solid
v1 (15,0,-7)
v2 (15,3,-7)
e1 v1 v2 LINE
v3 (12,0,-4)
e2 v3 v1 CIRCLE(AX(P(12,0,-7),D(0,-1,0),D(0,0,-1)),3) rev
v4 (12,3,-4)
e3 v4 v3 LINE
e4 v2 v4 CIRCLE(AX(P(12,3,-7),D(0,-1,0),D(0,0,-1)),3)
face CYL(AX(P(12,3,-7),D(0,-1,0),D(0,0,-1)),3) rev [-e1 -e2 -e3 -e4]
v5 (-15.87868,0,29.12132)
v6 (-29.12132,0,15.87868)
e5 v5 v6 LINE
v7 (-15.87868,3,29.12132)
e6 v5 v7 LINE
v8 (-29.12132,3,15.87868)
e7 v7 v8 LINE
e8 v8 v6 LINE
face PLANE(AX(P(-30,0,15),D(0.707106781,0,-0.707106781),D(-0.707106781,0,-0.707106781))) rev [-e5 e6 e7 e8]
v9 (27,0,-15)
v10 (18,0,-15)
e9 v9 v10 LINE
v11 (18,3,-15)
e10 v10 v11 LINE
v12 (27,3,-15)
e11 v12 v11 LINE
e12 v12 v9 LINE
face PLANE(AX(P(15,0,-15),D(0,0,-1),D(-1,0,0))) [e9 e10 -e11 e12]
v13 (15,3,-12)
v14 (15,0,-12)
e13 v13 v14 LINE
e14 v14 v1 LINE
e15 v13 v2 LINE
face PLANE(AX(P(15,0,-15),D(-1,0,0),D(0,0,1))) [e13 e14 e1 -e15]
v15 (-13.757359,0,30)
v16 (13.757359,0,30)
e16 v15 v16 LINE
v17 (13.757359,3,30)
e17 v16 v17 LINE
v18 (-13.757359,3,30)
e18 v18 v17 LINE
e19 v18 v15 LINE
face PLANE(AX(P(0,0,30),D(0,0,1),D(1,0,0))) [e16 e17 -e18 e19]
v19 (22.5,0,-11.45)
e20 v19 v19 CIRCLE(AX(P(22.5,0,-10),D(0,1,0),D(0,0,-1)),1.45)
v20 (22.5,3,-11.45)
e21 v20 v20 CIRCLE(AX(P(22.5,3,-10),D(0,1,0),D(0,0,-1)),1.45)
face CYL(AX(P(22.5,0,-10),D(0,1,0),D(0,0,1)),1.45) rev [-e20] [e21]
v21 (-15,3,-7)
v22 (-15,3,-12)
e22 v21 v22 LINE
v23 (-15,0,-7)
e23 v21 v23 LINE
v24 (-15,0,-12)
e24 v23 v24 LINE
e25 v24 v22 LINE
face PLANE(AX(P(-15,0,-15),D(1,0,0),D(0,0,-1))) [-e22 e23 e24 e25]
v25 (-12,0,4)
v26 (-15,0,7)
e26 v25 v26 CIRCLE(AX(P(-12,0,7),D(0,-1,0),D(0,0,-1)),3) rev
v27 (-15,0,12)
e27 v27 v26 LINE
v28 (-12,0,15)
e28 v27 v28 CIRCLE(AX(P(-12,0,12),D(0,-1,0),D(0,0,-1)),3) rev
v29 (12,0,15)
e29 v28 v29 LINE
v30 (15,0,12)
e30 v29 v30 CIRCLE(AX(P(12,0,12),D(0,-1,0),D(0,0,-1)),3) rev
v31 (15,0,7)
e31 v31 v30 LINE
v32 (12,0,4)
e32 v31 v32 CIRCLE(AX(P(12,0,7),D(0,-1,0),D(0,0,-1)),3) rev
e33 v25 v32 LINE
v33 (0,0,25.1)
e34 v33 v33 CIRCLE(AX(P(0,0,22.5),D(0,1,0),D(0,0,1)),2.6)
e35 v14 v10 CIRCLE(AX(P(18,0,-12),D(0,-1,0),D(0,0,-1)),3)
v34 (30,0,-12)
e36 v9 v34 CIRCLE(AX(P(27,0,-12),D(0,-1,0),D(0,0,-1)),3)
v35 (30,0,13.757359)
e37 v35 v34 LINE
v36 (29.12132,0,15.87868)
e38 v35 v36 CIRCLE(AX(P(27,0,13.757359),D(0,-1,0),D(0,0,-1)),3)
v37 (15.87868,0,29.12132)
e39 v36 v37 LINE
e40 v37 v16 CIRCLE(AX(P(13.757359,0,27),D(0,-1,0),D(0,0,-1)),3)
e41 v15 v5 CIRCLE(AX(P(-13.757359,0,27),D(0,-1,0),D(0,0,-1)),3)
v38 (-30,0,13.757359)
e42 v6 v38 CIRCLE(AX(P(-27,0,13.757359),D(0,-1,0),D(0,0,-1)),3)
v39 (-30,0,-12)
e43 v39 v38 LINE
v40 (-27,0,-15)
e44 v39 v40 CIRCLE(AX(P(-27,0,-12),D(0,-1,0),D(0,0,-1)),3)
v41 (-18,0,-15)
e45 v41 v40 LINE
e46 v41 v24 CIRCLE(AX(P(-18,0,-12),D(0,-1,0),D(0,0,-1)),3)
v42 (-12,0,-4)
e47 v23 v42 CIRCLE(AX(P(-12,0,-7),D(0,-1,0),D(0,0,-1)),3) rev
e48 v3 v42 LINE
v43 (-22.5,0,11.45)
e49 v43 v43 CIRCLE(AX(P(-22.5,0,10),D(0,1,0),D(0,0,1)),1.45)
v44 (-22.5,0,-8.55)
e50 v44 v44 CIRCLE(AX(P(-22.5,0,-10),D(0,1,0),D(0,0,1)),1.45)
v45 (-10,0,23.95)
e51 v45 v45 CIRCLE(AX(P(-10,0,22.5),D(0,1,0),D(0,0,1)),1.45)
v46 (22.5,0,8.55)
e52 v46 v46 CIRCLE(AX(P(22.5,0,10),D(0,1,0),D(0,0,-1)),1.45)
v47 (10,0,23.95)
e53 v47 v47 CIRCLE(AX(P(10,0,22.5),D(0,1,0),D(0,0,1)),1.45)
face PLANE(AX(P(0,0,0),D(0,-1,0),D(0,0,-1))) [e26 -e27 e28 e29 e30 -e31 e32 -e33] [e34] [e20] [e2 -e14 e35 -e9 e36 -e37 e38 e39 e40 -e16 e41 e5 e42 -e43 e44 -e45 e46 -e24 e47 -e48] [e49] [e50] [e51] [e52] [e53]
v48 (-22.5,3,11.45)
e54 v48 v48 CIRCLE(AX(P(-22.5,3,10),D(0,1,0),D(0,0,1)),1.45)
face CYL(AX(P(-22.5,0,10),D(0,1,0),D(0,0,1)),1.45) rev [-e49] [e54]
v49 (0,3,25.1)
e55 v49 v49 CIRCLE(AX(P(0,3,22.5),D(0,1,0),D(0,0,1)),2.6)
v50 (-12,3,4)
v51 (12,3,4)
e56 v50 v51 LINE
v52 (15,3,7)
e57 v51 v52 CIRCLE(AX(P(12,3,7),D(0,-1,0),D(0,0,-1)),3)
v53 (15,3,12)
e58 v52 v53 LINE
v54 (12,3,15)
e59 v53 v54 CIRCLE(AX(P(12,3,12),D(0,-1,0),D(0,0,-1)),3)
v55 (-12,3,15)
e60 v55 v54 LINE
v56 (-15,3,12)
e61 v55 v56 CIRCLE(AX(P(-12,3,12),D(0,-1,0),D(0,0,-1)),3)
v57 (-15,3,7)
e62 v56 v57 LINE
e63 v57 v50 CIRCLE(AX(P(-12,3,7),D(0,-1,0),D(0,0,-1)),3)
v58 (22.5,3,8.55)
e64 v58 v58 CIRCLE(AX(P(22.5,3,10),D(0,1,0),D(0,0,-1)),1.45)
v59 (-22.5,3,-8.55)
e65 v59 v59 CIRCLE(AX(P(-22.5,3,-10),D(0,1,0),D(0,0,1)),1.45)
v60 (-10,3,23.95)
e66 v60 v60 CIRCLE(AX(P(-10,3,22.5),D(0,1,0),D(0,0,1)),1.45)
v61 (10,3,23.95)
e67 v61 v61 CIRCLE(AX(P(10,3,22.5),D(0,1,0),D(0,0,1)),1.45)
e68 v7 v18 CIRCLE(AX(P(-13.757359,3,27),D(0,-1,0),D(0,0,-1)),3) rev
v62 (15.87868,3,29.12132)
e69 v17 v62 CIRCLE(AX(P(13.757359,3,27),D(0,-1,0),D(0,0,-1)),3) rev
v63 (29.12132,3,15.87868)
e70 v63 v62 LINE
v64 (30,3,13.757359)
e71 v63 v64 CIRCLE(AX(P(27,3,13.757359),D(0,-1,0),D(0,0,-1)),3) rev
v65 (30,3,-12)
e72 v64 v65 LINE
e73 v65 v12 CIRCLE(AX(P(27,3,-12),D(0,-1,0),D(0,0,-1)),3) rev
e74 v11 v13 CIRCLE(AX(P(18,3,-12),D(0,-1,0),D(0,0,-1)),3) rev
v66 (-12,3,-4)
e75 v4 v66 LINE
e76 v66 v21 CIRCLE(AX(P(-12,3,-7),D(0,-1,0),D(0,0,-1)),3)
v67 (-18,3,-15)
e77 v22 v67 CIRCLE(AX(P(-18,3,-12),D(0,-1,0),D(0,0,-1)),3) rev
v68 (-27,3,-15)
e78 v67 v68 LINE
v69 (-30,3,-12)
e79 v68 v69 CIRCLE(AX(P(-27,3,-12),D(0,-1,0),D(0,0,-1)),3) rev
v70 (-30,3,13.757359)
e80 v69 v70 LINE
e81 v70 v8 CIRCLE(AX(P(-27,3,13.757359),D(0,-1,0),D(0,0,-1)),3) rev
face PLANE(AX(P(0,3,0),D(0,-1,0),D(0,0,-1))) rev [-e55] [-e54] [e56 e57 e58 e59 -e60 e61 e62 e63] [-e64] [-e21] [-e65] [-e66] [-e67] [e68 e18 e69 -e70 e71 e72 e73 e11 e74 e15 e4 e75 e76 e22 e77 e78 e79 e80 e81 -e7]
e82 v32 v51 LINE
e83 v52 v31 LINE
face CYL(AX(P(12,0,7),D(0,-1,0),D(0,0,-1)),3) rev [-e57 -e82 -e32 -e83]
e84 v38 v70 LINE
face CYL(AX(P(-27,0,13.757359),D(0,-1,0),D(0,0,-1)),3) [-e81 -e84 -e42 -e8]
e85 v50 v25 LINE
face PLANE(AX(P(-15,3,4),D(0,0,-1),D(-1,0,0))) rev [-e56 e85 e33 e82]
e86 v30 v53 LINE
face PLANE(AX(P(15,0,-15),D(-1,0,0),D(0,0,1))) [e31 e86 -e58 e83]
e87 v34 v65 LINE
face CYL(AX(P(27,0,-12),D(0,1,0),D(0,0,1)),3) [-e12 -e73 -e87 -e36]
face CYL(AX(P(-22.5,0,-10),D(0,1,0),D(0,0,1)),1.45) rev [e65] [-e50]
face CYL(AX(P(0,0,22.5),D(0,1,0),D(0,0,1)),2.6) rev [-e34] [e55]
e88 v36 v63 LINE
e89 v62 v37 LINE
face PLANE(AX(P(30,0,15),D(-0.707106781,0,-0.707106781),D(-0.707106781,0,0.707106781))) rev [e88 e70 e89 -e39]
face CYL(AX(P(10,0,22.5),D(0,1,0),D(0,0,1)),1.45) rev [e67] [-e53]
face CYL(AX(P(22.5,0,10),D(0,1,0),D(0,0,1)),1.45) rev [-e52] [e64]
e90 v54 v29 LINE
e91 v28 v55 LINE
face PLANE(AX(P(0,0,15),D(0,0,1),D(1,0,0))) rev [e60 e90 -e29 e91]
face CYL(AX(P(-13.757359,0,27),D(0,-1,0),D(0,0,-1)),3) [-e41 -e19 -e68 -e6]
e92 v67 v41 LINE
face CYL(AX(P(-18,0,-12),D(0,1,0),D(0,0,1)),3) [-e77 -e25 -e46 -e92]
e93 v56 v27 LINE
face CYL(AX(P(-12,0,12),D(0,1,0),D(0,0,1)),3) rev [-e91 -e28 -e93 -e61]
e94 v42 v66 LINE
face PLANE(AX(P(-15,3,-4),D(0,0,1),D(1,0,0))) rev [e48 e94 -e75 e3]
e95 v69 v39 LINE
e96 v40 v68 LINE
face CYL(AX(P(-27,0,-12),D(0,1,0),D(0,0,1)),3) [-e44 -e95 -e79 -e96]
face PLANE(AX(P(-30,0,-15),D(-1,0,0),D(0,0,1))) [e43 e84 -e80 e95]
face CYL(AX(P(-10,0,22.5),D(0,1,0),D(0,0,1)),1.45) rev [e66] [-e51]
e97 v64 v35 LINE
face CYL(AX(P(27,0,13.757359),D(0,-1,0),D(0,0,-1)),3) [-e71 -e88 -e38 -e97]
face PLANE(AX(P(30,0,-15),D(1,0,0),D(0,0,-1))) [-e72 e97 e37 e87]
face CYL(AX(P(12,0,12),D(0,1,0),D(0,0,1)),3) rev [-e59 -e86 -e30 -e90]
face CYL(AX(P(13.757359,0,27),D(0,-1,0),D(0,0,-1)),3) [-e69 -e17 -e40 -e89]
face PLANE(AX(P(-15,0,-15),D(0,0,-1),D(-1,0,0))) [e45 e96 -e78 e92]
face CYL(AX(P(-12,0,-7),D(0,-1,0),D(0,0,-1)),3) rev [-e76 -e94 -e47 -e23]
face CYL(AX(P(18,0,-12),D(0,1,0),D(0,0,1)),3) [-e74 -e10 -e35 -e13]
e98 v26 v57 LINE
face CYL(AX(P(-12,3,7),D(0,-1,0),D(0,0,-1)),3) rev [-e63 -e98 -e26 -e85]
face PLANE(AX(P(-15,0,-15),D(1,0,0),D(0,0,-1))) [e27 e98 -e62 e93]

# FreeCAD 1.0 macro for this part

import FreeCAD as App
import Part
import Sketcher

V = App.Vector
Q = App.Units.Quantity


def edges_at(feature, points):
    """Names of the edges that pass closest to the given points."""
    edges = feature.Shape.Edges
    near = lambda p: min(range(len(edges)), key=lambda i: edges[i].distToShape(Part.Vertex(*p))[0])
    return sorted({f"Edge{near(p) + 1}" for p in points})


def add_polygon(sketch, points):
    """Adds a closed chain of lines whose ends are joined by coincident constraints."""
    first, n = sketch.GeometryCount, len(points)
    for a, b in zip(points, points[1:] + points[:1]):
        sketch.addGeometry(Part.LineSegment(App.Vector(*a, 0), App.Vector(*b, 0)), False)
    for i in range(n):
        sketch.addConstraint(Sketcher.Constraint("Coincident", first + i, 2, first + (i + 1) % n, 1))

doc = App.newDocument("Part")
body = doc.addObject("PartDesign::Body", "Body")

# Sketch on XZ plane
sketch1 = body.newObject("Sketcher::SketchObject", "Sketch")
sketch1.AttachmentSupport = (doc.getObject("XZ_Plane"), [""])
sketch1.MapMode = "FlatFace"
add_polygon(sketch1, [(-15, -10), (-15, 10), (15, 10), (15, -10)])  # lines 0-3
sketch1.addConstraint([
    Sketcher.Constraint("Vertical", 0),
    Sketcher.Constraint("Horizontal", 1),
    Sketcher.Constraint("Vertical", 2),
    Sketcher.Constraint("Horizontal", 3),
    Sketcher.Constraint("Symmetric", 0, 2, 2, 2, -1, 1),
    Sketcher.Constraint("DistanceX", 1, 1, 1, 2, Q("30 mm")),
    Sketcher.Constraint("DistanceY", 0, 1, 0, 2, Q("20 mm")),
])
pad1 = body.newObject("PartDesign::Pad", "Pad")
pad1.Profile = sketch1
pad1.Length = 3
pad1.Reversed = True

# Sketch on XZ plane
sketch2 = body.newObject("Sketcher::SketchObject", "Sketch001")
sketch2.AttachmentSupport = (doc.getObject("XZ_Plane"), [""])
sketch2.MapMode = "FlatFace"
sketch2.AttachmentOffset = App.Placement(V(0, 0, -3), App.Rotation())
sketch2.addGeometry([
    Part.Circle(V(-5, -7.5, 0), V(0, 0, 1), 1.6),
    Part.Circle(V(5, -7.5, 0), V(0, 0, 1), 1.6),
    Part.Circle(V(5, 7.5, 0), V(0, 0, 1), 1.6),
    Part.Circle(V(-5, 7.5, 0), V(0, 0, 1), 1.6),
], False)
sketch2.addConstraint([
    Sketcher.Constraint("Equal", 0, 1),
    Sketcher.Constraint("Equal", 1, 2),
    Sketcher.Constraint("Equal", 2, 3),
    Sketcher.Constraint("Symmetric", 0, 3, 2, 3, -1, 1),
    Sketcher.Constraint("Symmetric", 1, 3, 3, 3, -1, 1),
    Sketcher.Constraint("Symmetric", 0, 3, 1, 3, -2),
    Sketcher.Constraint("Diameter", 0, Q("3.2 mm")),
    Sketcher.Constraint("DistanceX", 0, 3, -1, 1, Q("5 mm")),
    Sketcher.Constraint("DistanceY", 1, 3, 2, 3, Q("15 mm")),
])
pocket1 = body.newObject("PartDesign::Pocket", "Pocket")
pocket1.Profile = sketch2
pocket1.Type = "ThroughAll"
pocket1.Reversed = True

# Sketch on XZ plane
sketch3 = body.newObject("Sketcher::SketchObject", "Sketch002")
sketch3.AttachmentSupport = (doc.getObject("XZ_Plane"), [""])
sketch3.MapMode = "FlatFace"
sketch3.AttachmentOffset = App.Placement(V(0, 0, -3), App.Rotation())
add_polygon(sketch3, [(15, -15), (15, 15), (30, 15), (30, -15)])  # lines 0-3
sketch3.addGeometry(Part.Circle(V(22.5, 10, 0), V(0, 0, 1), 1.4), False)  # 4
sketch3.addGeometry(Part.Circle(V(22.5, -10, 0), V(0, 0, 1), 1.4), False)  # 5
add_polygon(sketch3, [(-30, -15), (-30, 15), (-15, 15), (-15, -15)])  # lines 6-9
sketch3.addGeometry(Part.Circle(V(-22.5, 10, 0), V(0, 0, 1), 1.4), False)  # 10
sketch3.addGeometry(Part.Circle(V(-22.5, -10, 0), V(0, 0, 1), 1.4), False)  # 11
sketch3.addConstraint([
    Sketcher.Constraint("Vertical", 0),
    Sketcher.Constraint("Horizontal", 1),
    Sketcher.Constraint("Vertical", 2),
    Sketcher.Constraint("Horizontal", 3),
    Sketcher.Constraint("Vertical", 6),
    Sketcher.Constraint("Horizontal", 7),
    Sketcher.Constraint("Vertical", 8),
    Sketcher.Constraint("Horizontal", 9),
    Sketcher.Constraint("Equal", 4, 5),
    Sketcher.Constraint("Equal", 5, 10),
    Sketcher.Constraint("Equal", 10, 11),
    Sketcher.Constraint("Symmetric", 5, 3, 10, 3, -1, 1),
    Sketcher.Constraint("Symmetric", 4, 3, 11, 3, -1, 1),
    Sketcher.Constraint("Symmetric", 2, 2, 6, 2, -1, 1),
    Sketcher.Constraint("Symmetric", 0, 2, 8, 2, -1, 1),
    Sketcher.Constraint("Symmetric", 4, 3, 10, 3, -2),
    Sketcher.Constraint("Horizontal", 1, 2, 6, 2),
    Sketcher.Constraint("Diameter", 4, Q("2.9 mm")),
    Sketcher.Constraint("DistanceX", 1, 1, 1, 2, Q("15 mm")),
    Sketcher.Constraint("DistanceY", 0, 1, 0, 2, Q("30 mm")),
    Sketcher.Constraint("DistanceY", -1, 1, 4, 3, Q("10 mm")),
    Sketcher.Constraint("DistanceX", -1, 1, 0, 2, Q("15 mm")),
    Sketcher.Constraint("DistanceX", 10, 3, 4, 3, Q("45 mm")),
])
pad2 = body.newObject("PartDesign::Pad", "Pad001")
pad2.Profile = sketch3
pad2.Length = 3

# Sketch on XZ plane
sketch4 = body.newObject("Sketcher::SketchObject", "Sketch003")
sketch4.AttachmentSupport = (doc.getObject("XZ_Plane"), [""])
sketch4.MapMode = "FlatFace"
add_polygon(sketch4, [(-15, 10), (-15, 4), (15, 4), (15, 10)])  # lines 0-3
add_polygon(sketch4, [(-15, -4), (-15, -10), (15, -10), (15, -4)])  # lines 4-7
sketch4.addConstraint([
    Sketcher.Constraint("Vertical", 0),
    Sketcher.Constraint("Horizontal", 1),
    Sketcher.Constraint("Vertical", 2),
    Sketcher.Constraint("Horizontal", 3),
    Sketcher.Constraint("Vertical", 4),
    Sketcher.Constraint("Horizontal", 5),
    Sketcher.Constraint("Vertical", 6),
    Sketcher.Constraint("Horizontal", 7),
    Sketcher.Constraint("Symmetric", 2, 2, 4, 2, -1, 1),
    Sketcher.Constraint("Symmetric", 0, 2, 6, 2, -1, 1),
    Sketcher.Constraint("Vertical", 3, 2, 4, 2),
    Sketcher.Constraint("DistanceX", 1, 1, 1, 2, Q("30 mm")),
    Sketcher.Constraint("DistanceY", 0, 2, 0, 1, Q("6 mm")),
    Sketcher.Constraint("DistanceY", -1, 1, 0, 2, Q("4 mm")),
])
pocket2 = body.newObject("PartDesign::Pocket", "Pocket001")
pocket2.Profile = sketch4
pocket2.Type = "ThroughAll"

# Sketch on XZ plane
sketch5 = body.newObject("Sketcher::SketchObject", "Sketch004")
sketch5.AttachmentSupport = (doc.getObject("XZ_Plane"), [""])
sketch5.MapMode = "FlatFace"
sketch5.AttachmentOffset = App.Placement(V(0, 0, -3), App.Rotation())
add_polygon(sketch5, [(30, 15), (-30, 15), (-30, 30), (30, 30)])  # lines 0-3
sketch5.addGeometry(Part.Circle(V(-10, 22.5, 0), V(0, 0, 1), 1.4), False)  # 4
sketch5.addGeometry(Part.Circle(V(0, 22.5, 0), V(0, 0, 1), 2.6), False)  # 5
sketch5.addGeometry(Part.Circle(V(10, 22.5, 0), V(0, 0, 1), 1.4), False)  # 6
sketch5.addConstraint([
    Sketcher.Constraint("Horizontal", 0),
    Sketcher.Constraint("Vertical", 1),
    Sketcher.Constraint("Horizontal", 2),
    Sketcher.Constraint("Vertical", 3),
    Sketcher.Constraint("Equal", 4, 6),
    Sketcher.Constraint("Symmetric", 4, 3, 6, 3, -2),
    Sketcher.Constraint("PointOnObject", 5, 3, -2),
    Sketcher.Constraint("Horizontal", 4, 3, 5, 3),
    Sketcher.Constraint("Diameter", 4, Q("2.9 mm")),
    Sketcher.Constraint("Diameter", 5, Q("5.2 mm")),
    Sketcher.Constraint("DistanceX", 0, 2, 0, 1, Q("60 mm")),
    Sketcher.Constraint("DistanceY", 1, 1, 1, 2, Q("15 mm")),
    Sketcher.Constraint("DistanceX", 4, 3, -1, 1, Q("10 mm")),
    Sketcher.Constraint("DistanceX", 0, 2, -1, 1, Q("30 mm")),
    Sketcher.Constraint("DistanceY", -1, 1, 0, 2, Q("15 mm")),
    Sketcher.Constraint("DistanceY", -1, 1, 4, 3, Q("22.5 mm")),
])
pad3 = body.newObject("PartDesign::Pad", "Pad002")
pad3.Profile = sketch5
pad3.Length = 3

# Sketch on XZ plane
sketch6 = body.newObject("Sketcher::SketchObject", "Sketch005")
sketch6.AttachmentSupport = (doc.getObject("XZ_Plane"), [""])
sketch6.MapMode = "FlatFace"
sketch6.AttachmentOffset = App.Placement(V(0, 0, -3), App.Rotation())
add_polygon(sketch6, [(-15, 30), (-30, 15), (-30, 30)])  # lines 0-2
add_polygon(sketch6, [(30, 30), (30, 15), (15, 30)])  # lines 3-5
sketch6.addConstraint([
    Sketcher.Constraint("Vertical", 1),
    Sketcher.Constraint("Horizontal", 2),
    Sketcher.Constraint("Vertical", 3),
    Sketcher.Constraint("Horizontal", 5),
    Sketcher.Constraint("Symmetric", 0, 2, 3, 2, -2),
    Sketcher.Constraint("Symmetric", 2, 2, 4, 2, -2),
    Sketcher.Constraint("Perpendicular", 0, 4),
    Sketcher.Constraint("DistanceX", 2, 1, 2, 2, Q("15 mm")),
    Sketcher.Constraint("DistanceX", 0, 2, -1, 1, Q("30 mm")),
    Sketcher.Constraint("DistanceY", -1, 1, 0, 2, Q("15 mm")),
])
pocket3 = body.newObject("PartDesign::Pocket", "Pocket002")
pocket3.Profile = sketch6
pocket3.Type = "ThroughAll"
pocket3.Reversed = True
doc.recompute()

fillet = body.newObject("PartDesign::Fillet", "Fillet")
fillet.Base = (pocket3, edges_at(pocket3, [
    (-30, 1.5, 15),
    (-15, 1.5, 30),
    (15, 1.5, 30),
    (30, 1.5, 15),
    (15, 1.5, 15),
    (15, 1.5, -15),
    (30, 1.5, -15),
    (-15, 1.5, -15),
    (-15, 1.5, 15),
    (-30, 1.5, -15),
    (-15, 1.5, 4),
    (15, 1.5, 4),
    (-15, 1.5, -4),
    (15, 1.5, -4),
]))
fillet.Radius = 3

doc.recompute()
